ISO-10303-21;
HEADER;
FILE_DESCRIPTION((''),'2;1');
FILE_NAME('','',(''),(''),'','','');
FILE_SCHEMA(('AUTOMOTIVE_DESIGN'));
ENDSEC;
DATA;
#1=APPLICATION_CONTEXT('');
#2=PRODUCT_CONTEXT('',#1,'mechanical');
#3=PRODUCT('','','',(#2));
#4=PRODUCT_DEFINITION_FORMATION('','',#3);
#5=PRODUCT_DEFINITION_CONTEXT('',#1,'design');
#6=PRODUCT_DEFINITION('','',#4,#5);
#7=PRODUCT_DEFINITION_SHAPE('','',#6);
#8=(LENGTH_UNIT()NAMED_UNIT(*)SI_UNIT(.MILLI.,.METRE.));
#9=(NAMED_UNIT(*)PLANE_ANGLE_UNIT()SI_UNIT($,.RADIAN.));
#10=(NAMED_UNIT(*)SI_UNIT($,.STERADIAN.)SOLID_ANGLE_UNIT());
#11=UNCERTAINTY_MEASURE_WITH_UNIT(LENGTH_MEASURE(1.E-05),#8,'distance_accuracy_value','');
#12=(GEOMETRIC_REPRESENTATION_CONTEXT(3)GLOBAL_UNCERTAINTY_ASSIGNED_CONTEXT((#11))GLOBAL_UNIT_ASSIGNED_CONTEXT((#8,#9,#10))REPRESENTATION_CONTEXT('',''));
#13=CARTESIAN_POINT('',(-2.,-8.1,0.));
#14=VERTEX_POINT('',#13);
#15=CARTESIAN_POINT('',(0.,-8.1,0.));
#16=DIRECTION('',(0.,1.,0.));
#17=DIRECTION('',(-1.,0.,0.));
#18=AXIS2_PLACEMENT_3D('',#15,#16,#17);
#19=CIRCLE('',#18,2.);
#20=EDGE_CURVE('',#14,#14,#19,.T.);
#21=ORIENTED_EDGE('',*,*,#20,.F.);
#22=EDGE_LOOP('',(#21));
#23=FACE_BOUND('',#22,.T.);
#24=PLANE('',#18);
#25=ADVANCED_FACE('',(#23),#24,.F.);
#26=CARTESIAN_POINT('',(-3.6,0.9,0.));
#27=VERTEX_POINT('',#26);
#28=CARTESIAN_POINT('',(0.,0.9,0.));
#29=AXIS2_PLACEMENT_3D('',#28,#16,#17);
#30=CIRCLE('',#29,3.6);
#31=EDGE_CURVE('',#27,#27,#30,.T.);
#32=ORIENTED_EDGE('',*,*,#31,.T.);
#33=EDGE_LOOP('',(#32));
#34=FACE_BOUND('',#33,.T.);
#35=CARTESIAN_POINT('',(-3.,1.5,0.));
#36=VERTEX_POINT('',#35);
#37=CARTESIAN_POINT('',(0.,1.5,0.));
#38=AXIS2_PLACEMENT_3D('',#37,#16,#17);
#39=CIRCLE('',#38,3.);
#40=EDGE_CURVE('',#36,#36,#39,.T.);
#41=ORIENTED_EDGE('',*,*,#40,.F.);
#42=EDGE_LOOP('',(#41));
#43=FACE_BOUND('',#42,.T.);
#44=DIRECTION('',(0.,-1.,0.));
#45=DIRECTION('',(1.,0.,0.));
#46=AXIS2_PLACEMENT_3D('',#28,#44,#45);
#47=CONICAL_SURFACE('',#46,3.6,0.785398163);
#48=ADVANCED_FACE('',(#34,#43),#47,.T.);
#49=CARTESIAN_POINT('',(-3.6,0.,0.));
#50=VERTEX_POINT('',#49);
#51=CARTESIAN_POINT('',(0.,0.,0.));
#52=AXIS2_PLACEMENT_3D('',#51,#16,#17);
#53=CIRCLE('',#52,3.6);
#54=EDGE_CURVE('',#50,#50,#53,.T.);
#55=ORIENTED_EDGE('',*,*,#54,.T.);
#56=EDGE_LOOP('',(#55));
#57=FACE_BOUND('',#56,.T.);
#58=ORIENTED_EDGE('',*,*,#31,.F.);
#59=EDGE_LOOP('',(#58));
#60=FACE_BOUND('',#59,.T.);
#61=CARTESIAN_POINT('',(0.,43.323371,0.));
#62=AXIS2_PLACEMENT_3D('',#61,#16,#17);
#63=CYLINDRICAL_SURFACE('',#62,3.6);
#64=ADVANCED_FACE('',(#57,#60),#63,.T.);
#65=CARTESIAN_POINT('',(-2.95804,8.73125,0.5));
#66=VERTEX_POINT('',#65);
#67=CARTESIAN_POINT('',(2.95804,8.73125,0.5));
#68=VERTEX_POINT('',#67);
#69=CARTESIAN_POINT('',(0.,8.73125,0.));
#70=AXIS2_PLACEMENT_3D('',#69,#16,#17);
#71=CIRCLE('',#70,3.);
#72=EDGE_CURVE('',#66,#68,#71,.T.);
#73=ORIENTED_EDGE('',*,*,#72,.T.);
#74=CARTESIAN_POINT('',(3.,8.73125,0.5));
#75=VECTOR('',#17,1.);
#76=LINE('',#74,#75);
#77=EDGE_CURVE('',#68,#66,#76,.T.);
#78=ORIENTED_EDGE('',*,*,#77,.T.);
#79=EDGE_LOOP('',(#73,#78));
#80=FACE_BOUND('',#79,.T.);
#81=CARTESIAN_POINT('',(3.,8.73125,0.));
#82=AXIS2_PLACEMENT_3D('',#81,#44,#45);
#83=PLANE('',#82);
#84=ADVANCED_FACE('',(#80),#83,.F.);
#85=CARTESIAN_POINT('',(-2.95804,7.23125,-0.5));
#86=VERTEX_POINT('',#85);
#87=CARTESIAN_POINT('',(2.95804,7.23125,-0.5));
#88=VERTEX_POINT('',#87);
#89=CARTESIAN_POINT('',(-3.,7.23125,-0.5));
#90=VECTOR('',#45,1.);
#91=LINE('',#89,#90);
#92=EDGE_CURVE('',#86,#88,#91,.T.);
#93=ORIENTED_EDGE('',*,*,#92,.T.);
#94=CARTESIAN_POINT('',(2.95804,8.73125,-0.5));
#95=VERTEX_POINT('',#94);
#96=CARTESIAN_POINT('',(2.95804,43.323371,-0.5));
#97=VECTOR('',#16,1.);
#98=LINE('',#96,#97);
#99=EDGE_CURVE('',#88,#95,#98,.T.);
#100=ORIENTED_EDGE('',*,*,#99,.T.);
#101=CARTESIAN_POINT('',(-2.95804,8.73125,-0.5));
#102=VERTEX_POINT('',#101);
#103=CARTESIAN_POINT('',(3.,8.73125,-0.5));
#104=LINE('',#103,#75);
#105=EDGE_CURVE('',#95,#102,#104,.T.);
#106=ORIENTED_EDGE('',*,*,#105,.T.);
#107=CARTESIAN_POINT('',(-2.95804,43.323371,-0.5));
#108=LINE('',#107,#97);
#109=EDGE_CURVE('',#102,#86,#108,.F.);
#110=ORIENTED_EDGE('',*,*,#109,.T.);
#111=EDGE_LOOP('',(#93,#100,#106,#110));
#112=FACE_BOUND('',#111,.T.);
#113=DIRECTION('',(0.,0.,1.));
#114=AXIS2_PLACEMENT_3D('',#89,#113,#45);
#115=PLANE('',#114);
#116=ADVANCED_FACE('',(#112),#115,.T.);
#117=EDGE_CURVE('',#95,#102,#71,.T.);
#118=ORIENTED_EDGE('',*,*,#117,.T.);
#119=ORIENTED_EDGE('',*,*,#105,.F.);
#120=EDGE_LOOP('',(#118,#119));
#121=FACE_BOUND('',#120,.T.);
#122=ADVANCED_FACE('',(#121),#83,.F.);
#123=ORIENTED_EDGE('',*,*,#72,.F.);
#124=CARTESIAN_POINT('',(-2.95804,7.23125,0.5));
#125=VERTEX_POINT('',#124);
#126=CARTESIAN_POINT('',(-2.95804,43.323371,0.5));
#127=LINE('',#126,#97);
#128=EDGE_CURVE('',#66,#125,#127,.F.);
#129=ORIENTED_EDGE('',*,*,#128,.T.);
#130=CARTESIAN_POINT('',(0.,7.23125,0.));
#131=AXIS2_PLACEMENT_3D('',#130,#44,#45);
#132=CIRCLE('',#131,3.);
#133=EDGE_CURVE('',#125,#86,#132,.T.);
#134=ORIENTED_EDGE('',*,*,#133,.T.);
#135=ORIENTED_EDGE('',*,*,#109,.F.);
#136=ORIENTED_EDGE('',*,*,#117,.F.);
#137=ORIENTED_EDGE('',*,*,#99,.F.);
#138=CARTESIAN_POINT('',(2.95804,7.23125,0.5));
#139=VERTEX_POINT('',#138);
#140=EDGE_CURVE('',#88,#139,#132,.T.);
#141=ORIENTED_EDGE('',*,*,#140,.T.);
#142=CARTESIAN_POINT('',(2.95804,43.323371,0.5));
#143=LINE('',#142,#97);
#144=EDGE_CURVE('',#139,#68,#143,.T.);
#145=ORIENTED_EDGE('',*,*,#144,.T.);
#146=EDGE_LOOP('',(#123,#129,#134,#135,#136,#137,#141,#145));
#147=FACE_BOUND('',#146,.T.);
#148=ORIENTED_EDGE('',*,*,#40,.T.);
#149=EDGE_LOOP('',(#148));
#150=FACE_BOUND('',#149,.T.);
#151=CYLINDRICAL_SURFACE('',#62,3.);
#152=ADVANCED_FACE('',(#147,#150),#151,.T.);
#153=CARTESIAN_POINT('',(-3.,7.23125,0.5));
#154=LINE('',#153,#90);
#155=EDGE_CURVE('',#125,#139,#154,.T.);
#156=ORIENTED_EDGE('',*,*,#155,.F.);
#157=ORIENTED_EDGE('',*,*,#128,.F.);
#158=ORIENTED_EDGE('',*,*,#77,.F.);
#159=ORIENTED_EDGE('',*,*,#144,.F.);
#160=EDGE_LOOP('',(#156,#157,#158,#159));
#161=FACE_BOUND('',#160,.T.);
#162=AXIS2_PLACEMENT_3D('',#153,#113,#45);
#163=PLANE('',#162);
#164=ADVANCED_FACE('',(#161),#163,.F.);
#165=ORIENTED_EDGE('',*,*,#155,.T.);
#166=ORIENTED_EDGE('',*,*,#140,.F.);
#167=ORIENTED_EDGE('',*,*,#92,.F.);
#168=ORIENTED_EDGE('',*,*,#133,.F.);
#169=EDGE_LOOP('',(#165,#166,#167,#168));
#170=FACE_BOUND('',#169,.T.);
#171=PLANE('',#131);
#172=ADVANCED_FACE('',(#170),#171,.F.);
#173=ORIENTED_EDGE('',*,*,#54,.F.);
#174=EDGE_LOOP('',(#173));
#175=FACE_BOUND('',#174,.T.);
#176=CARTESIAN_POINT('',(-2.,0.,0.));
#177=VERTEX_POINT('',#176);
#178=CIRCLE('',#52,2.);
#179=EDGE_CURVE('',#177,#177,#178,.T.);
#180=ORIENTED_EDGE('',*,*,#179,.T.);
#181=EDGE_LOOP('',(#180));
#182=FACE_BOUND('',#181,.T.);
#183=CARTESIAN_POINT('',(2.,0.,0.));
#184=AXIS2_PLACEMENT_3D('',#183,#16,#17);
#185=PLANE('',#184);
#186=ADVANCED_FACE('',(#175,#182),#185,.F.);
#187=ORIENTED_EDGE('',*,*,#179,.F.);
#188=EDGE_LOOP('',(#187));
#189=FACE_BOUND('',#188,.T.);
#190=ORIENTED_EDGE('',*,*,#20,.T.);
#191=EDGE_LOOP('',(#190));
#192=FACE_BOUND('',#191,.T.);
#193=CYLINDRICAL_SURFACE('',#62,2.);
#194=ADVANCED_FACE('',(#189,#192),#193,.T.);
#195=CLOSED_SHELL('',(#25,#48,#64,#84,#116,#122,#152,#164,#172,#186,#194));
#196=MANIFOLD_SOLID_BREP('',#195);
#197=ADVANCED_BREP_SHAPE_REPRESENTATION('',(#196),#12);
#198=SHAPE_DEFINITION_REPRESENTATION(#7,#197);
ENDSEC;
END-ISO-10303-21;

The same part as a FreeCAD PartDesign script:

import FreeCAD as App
import Part
import Sketcher
from FreeCAD import Vector
Q = App.Units.Quantity


def add_polygon(sketch, points):
    """Adds a closed chain of lines whose ends are joined by coincident constraints."""
    first, n = sketch.GeometryCount, len(points)
    for a, b in zip(points, points[1:] + points[:1]):
        sketch.addGeometry(Part.LineSegment(App.Vector(*a, 0), App.Vector(*b, 0)), False)
    for i in range(n):
        sketch.addConstraint(Sketcher.Constraint("Coincident", first + i, 2, first + (i + 1) % n, 1))

doc = App.newDocument("Part")
body = doc.addObject("PartDesign::Body", "Body")

# Sketch on XY plane
sketch1 = body.newObject("Sketcher::SketchObject", "Sketch")
sketch1.AttachmentSupport = (doc.getObject("XY_Plane"), [""])
sketch1.MapMode = "FlatFace"
add_polygon(sketch1, [(0, -8.1), (2, -8.1), (2, 0), (3.6, 0), (3.6, 0.9), (3, 1.5), (3, 8.7), (0, 8.7)])  # lines 0-7
sketch1.addConstraint([
    Sketcher.Constraint("Horizontal", 0),
    Sketcher.Constraint("Vertical", 1),
    Sketcher.Constraint("Horizontal", 2),
    Sketcher.Constraint("Vertical", 3),
    Sketcher.Constraint("Vertical", 5),
    Sketcher.Constraint("Horizontal", 6),
    Sketcher.Constraint("Vertical", 7),
    Sketcher.Constraint("PointOnObject", 1, 2, -1),
    Sketcher.Constraint("PointOnObject", 6, 2, -2),
    Sketcher.Constraint("DistanceX", 0, 1, 0, 2, Q("2 mm")),
    Sketcher.Constraint("DistanceX", 6, 2, 6, 1, Q("3 mm")),
    Sketcher.Constraint("Angle", 4, Q("135 deg")),
    Sketcher.Constraint("DistanceX", 2, 1, 2, 2, Q("1.6 mm")),
    Sketcher.Constraint("DistanceY", 1, 1, 1, 2, Q("8.1 mm")),
    Sketcher.Constraint("DistanceY", 3, 1, 3, 2, Q("0.9 mm")),
    Sketcher.Constraint("DistanceY", 5, 1, 5, 2, Q("7.23125 mm")),
])
revolution = body.newObject("PartDesign::Revolution", "Revolution")
revolution.Profile = sketch1
revolution.ReferenceAxis = (sketch1, ["V_Axis"])
revolution.Angle = 360

# Sketch on XZ plane
sketch2 = body.newObject("Sketcher::SketchObject", "Sketch001")
sketch2.AttachmentSupport = (doc.getObject("XZ_Plane"), [""])
sketch2.MapMode = "FlatFace"
sketch2.AttachmentOffset = App.Placement(Vector(0, 0, -8.73125), App.Rotation())
add_polygon(sketch2, [(-3, -0.5), (-3, 0.5), (3, 0.5), (3, -0.5)])  # lines 0-3
sketch2.addConstraint([
    Sketcher.Constraint("Vertical", 0),
    Sketcher.Constraint("Horizontal", 1),
    Sketcher.Constraint("Vertical", 2),
    Sketcher.Constraint("Horizontal", 3),
    Sketcher.Constraint("Symmetric", 0, 2, 2, 2, -1, 1),
    Sketcher.Constraint("DistanceX", 1, 1, 1, 2, Q("6 mm")),
    Sketcher.Constraint("DistanceY", 0, 1, 0, 2, Q("1 mm")),
])
pocket1 = body.newObject("PartDesign::Pocket", "Pocket")
pocket1.Profile = sketch2
pocket1.Length = 1.5
pocket1.Reversed = True

doc.recompute()
